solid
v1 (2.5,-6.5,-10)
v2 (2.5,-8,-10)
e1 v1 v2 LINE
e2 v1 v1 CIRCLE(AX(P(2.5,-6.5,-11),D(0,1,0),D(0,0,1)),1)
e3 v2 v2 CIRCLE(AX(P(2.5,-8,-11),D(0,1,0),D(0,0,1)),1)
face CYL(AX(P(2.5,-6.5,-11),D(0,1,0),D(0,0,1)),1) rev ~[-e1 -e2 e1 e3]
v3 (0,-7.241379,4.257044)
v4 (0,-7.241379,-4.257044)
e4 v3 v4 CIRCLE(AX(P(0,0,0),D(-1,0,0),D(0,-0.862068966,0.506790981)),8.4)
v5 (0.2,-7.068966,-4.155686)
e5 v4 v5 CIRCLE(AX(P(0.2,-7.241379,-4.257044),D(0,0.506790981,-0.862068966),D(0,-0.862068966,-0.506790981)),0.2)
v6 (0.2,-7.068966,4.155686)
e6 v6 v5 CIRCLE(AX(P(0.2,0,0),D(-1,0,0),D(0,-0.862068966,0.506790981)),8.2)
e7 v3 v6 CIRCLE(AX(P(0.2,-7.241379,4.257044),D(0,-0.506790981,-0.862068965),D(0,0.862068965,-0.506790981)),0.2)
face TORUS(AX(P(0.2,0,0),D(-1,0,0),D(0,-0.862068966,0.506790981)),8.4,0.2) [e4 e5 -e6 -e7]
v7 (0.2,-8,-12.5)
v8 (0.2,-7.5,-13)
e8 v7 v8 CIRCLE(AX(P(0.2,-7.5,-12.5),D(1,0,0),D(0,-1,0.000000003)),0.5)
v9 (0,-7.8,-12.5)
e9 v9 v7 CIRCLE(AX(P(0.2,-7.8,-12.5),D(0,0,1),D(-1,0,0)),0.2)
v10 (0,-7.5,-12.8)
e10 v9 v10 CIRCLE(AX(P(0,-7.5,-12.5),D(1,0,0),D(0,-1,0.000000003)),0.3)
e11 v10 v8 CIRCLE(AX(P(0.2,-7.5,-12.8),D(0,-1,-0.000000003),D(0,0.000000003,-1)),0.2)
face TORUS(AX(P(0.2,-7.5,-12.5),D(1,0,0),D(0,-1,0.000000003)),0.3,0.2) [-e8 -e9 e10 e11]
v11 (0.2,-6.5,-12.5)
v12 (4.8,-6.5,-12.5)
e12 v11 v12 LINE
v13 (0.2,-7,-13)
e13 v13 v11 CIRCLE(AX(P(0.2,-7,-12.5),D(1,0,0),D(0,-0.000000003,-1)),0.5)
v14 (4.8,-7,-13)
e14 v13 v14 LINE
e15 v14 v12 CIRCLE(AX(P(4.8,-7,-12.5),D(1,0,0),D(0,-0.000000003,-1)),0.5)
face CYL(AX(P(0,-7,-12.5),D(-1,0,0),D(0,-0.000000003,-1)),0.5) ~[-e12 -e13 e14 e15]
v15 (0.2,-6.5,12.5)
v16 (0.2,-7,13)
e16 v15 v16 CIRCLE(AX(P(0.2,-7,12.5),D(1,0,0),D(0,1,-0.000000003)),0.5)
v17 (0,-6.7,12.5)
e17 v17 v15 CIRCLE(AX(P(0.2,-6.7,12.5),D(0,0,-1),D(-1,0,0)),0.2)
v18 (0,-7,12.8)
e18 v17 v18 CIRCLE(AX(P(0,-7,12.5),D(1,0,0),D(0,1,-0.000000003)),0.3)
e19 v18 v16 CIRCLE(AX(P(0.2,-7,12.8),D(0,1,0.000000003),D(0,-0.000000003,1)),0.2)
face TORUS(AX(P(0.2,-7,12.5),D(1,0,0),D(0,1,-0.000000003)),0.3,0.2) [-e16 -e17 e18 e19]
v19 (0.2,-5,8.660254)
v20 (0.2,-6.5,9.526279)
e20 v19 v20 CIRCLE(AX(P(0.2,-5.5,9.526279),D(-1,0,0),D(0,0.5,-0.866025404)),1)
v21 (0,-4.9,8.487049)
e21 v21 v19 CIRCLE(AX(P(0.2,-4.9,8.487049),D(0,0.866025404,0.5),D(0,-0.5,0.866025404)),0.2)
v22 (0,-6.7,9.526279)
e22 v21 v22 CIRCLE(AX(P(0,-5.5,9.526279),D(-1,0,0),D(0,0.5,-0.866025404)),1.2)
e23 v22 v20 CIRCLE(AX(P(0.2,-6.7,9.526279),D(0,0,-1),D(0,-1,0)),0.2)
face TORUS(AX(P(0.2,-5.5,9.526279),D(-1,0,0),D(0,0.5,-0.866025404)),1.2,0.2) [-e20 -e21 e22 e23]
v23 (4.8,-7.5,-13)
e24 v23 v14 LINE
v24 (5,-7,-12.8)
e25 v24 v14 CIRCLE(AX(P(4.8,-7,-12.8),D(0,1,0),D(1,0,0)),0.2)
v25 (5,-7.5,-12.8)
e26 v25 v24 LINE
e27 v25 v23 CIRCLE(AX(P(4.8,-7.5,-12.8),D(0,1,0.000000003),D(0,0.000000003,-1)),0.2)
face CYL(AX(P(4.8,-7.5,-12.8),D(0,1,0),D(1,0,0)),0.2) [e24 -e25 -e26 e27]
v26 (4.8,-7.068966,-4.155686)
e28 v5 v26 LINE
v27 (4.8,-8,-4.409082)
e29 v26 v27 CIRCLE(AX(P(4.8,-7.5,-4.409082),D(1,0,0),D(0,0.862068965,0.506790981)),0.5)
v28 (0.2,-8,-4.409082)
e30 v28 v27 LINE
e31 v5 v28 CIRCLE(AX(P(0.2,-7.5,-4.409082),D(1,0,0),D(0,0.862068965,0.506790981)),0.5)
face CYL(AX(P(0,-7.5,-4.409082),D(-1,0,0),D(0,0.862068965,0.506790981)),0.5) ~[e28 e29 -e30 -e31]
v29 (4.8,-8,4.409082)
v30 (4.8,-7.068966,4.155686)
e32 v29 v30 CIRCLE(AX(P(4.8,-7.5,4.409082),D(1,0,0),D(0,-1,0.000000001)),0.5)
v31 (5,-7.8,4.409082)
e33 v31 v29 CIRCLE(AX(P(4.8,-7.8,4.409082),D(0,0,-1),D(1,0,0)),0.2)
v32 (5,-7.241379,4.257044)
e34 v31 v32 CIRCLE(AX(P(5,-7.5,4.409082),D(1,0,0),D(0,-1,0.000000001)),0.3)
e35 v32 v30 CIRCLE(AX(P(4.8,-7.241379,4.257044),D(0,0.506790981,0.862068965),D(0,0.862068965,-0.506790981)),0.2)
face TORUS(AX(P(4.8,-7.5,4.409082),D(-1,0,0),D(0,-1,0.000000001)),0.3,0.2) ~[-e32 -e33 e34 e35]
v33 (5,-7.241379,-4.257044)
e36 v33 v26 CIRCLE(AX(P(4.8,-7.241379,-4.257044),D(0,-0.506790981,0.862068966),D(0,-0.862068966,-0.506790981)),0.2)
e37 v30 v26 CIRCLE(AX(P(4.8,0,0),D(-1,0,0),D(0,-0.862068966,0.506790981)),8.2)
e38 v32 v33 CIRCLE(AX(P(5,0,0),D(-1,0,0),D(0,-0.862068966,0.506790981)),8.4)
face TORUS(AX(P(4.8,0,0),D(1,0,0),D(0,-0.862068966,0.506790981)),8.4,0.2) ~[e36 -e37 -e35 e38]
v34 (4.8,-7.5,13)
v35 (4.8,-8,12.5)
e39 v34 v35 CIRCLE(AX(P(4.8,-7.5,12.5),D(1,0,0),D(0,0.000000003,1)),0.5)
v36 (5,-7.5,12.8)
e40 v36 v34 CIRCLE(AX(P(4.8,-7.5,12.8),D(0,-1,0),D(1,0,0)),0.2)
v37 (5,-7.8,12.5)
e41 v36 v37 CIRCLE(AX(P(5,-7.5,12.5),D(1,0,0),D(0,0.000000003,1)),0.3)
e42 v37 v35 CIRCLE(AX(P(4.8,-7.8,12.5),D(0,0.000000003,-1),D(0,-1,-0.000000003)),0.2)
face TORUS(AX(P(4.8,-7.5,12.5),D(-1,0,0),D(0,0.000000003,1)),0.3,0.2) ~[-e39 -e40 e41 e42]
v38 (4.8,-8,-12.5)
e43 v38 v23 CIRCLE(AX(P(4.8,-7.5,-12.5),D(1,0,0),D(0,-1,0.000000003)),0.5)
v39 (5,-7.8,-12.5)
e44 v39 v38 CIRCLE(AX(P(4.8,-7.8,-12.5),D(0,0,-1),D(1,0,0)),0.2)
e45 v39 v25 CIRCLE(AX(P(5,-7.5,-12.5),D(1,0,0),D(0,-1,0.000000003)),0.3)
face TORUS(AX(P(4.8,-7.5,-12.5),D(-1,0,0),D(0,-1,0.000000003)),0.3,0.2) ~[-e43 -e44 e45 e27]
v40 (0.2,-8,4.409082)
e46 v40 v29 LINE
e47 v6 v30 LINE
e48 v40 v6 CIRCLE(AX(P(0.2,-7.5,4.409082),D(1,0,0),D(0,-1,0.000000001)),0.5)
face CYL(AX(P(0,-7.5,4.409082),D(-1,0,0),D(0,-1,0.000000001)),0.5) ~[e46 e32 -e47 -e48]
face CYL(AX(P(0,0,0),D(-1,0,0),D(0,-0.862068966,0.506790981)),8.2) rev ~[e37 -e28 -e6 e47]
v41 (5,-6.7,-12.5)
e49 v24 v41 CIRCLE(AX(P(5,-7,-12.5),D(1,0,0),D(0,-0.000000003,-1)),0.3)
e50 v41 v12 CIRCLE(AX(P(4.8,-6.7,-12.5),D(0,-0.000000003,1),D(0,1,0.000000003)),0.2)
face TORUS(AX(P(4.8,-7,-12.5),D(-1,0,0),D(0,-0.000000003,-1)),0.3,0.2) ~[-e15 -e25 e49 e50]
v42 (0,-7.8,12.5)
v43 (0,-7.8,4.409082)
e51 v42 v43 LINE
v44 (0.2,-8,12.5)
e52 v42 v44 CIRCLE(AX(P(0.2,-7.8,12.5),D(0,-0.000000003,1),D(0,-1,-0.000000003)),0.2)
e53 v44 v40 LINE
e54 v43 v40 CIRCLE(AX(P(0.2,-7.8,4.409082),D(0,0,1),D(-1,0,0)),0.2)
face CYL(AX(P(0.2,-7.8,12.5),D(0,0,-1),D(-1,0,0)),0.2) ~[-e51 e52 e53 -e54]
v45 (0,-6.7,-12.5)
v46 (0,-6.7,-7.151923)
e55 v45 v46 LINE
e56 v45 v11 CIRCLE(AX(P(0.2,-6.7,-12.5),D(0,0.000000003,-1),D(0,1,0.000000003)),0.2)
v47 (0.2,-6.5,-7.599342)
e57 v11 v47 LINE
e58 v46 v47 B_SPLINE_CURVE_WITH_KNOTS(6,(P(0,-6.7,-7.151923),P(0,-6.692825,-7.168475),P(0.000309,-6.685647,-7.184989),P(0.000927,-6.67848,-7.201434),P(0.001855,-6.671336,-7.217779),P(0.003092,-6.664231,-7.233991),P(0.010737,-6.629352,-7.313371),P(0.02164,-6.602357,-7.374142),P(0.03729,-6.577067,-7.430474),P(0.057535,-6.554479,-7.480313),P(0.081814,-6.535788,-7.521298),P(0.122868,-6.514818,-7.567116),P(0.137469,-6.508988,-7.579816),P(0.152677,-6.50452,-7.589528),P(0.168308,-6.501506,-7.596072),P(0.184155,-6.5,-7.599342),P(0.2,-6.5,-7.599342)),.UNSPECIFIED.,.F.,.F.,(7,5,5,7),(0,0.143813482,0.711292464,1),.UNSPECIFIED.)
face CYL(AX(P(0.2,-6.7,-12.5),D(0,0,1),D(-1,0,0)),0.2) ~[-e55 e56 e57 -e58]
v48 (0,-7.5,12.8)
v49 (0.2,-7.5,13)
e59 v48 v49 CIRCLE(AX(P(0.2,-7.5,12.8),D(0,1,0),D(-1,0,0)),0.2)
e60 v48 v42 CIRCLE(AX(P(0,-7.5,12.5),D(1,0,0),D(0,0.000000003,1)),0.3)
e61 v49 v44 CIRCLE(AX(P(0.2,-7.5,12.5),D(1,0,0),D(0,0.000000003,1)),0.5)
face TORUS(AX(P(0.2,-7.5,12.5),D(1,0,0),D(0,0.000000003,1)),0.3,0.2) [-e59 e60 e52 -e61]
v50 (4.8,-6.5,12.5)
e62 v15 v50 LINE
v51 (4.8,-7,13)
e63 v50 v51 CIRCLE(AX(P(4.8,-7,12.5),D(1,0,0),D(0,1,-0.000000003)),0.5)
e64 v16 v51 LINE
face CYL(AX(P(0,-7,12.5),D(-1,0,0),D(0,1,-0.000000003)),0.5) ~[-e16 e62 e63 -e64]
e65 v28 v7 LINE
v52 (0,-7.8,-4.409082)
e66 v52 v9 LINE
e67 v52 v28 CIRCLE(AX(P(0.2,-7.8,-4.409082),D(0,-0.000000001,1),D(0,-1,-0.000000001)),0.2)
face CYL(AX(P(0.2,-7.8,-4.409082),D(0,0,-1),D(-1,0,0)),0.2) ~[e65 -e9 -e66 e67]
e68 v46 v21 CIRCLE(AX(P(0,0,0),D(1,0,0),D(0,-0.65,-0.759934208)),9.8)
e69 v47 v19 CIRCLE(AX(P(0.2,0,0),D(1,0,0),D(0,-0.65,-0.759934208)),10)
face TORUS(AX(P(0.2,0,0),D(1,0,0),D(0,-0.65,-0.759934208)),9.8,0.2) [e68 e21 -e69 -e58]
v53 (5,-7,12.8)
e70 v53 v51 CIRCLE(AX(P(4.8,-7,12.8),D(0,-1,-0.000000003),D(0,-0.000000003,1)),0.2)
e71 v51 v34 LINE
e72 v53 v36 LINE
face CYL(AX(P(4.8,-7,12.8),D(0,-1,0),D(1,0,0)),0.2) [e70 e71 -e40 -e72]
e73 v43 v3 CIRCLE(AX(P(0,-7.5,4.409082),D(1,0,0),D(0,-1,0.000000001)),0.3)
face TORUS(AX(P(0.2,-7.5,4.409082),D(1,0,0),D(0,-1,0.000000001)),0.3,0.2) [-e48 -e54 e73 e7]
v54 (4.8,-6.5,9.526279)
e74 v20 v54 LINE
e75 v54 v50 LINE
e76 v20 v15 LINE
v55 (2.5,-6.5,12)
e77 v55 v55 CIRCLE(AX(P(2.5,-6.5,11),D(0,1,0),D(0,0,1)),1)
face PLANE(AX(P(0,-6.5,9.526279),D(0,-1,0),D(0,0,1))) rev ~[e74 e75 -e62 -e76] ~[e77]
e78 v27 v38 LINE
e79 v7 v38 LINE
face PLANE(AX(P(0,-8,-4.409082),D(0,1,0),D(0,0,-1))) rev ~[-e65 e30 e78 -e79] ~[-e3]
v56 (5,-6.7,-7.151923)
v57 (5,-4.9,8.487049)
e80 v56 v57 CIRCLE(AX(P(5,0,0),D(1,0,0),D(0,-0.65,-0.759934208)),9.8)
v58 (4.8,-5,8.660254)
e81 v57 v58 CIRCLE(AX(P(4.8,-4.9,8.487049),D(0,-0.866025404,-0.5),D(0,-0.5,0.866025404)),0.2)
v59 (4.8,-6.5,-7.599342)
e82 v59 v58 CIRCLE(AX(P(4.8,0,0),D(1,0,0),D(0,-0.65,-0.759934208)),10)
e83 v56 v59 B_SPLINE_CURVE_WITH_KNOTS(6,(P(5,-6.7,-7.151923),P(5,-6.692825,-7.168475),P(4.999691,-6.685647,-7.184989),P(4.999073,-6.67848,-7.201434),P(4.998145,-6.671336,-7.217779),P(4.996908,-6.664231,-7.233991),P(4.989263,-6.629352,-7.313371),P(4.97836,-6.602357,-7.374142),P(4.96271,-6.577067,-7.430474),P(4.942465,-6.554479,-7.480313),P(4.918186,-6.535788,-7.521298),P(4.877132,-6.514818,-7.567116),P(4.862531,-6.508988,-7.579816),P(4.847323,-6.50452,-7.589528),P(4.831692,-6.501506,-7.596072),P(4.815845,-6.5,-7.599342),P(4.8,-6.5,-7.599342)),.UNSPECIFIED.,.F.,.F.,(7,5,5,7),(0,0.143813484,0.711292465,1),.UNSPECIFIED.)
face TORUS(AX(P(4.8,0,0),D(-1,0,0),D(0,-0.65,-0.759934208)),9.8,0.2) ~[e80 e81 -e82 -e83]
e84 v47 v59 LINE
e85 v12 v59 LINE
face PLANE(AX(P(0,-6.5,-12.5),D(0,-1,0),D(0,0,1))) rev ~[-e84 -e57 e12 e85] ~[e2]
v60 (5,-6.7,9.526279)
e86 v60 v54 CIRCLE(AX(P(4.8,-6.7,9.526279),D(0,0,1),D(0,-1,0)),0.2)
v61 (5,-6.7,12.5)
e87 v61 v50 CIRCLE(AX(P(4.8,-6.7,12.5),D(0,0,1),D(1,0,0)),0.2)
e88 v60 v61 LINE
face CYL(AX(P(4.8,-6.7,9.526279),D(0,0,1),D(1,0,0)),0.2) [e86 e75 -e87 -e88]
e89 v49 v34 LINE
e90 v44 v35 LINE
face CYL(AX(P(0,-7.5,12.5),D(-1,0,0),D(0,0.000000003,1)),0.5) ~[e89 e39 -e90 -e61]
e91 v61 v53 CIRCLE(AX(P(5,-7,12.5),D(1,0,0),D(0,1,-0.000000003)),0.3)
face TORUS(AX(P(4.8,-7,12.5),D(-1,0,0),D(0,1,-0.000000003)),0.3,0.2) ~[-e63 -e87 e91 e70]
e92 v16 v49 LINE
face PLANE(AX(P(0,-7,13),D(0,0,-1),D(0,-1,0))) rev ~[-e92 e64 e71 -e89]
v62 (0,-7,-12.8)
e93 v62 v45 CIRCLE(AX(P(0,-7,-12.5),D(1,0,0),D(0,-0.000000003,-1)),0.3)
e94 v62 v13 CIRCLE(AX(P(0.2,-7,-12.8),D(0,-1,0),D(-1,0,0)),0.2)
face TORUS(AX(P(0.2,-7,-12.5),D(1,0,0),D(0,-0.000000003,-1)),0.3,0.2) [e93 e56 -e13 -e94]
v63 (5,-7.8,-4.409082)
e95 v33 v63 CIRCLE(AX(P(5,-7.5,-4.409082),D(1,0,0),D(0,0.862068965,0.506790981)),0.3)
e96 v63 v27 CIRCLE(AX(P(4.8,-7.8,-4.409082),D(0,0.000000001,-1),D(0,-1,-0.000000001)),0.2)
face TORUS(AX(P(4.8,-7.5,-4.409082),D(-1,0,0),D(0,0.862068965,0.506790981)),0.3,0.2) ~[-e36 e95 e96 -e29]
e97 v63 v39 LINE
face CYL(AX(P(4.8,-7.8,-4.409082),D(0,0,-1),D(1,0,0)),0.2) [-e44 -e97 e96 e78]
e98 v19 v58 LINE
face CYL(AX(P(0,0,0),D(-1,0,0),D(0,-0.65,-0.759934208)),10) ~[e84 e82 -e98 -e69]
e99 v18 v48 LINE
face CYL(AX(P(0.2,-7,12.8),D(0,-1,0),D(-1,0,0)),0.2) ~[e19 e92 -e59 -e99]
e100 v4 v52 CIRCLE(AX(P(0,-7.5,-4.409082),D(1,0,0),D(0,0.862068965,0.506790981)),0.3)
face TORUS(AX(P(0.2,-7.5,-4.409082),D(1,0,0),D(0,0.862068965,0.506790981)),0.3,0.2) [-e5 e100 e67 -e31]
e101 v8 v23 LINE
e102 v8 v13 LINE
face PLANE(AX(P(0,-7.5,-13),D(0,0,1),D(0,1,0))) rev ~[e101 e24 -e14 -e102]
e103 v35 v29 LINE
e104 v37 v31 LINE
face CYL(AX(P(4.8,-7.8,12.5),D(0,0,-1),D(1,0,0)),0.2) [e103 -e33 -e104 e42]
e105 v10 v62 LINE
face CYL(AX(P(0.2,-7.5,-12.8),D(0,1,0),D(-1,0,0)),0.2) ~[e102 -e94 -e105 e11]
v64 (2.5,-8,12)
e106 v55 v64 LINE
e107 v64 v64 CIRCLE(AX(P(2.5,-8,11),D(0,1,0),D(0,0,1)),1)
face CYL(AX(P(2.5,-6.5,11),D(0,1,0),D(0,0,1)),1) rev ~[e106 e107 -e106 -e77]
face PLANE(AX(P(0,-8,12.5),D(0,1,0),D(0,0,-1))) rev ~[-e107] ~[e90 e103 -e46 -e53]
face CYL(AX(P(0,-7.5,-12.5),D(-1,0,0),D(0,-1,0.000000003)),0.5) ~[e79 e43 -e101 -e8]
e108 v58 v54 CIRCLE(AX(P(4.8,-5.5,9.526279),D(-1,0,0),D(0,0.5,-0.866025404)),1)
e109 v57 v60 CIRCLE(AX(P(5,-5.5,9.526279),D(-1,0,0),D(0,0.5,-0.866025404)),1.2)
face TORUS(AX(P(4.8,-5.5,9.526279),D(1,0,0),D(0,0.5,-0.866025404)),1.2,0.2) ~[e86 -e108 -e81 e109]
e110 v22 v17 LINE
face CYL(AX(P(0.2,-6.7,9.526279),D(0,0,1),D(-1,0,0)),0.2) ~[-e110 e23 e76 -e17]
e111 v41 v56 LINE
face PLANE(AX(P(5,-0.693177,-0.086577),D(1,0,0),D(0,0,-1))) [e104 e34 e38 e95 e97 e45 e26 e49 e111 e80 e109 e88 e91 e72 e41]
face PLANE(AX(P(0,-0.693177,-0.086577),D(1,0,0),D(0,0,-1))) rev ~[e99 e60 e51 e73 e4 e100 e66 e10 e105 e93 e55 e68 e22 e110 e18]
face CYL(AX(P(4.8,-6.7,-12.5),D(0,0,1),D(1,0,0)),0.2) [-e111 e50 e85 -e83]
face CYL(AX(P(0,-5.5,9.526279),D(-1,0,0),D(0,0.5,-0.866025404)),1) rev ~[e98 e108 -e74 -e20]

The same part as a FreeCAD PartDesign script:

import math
import FreeCAD as App
import Part
import Sketcher
from FreeCAD import Vector
Q = App.Units.Quantity


def edges_at(feature, points):
    """Names of the edges that pass closest to the given points."""
    edges = feature.Shape.Edges
    near = lambda p: min(range(len(edges)), key=lambda i: edges[i].distToShape(Part.Vertex(*p))[0])
    return sorted({f"Edge{near(p) + 1}" for p in points})

doc = App.newDocument("Part")
body = doc.addObject("PartDesign::Body", "Body")

sketch1 = body.newObject("Sketcher::SketchObject", "Sketch")
sketch1.AttachmentSupport = (doc.getObject("YZ_Plane"), [""])
sketch1.MapMode = "FlatFace"
sketch1.addGeometry([
    Part.LineSegment(Vector(-8, 12.5, 0), Vector(-8, 4.41, 0)),
    Part.ArcOfCircle(Part.Circle(Vector(-7.5, 4.41, 0), Vector(0, 0, 1), 0.5), math.radians(180), math.radians(330)),
    Part.ArcOfCircle(Part.Circle(Vector(0, 0, 0), Vector(0, 0, 1), 8.2), math.radians(-150), math.radians(150)),
    Part.ArcOfCircle(Part.Circle(Vector(-7.5, -4.41, 0), Vector(0, 0, 1), 0.5), math.radians(30), math.radians(180)),
    Part.LineSegment(Vector(-8, -4.41, 0), Vector(-8, -12.5, 0)),
    Part.ArcOfCircle(Part.Circle(Vector(-7.5, -12.5, 0), Vector(0, 0, 1), 0.5), math.radians(180), math.radians(270)),
    Part.LineSegment(Vector(-7.5, -13, 0), Vector(-7, -13, 0)),
    Part.ArcOfCircle(Part.Circle(Vector(-7, -12.5, 0), Vector(0, 0, 1), 0.5), math.radians(-90), math.radians(0)),
    Part.LineSegment(Vector(-6.5, -12.5, 0), Vector(-6.5, -7.6, 0)),
    Part.ArcOfCircle(Part.Circle(Vector(0, 0, 0), Vector(0, 0, 1), 10), math.radians(-131), math.radians(120)),
    Part.ArcOfCircle(Part.Circle(Vector(-5.5, 9.53, 0), Vector(0, 0, 1), 1), math.radians(180), math.radians(300)),
    Part.LineSegment(Vector(-6.5, 9.53, 0), Vector(-6.5, 12.5, 0)),
    Part.ArcOfCircle(Part.Circle(Vector(-7, 12.5, 0), Vector(0, 0, 1), 0.5), math.radians(0), math.radians(90)),
    Part.LineSegment(Vector(-7, 13, 0), Vector(-7.5, 13, 0)),
    Part.ArcOfCircle(Part.Circle(Vector(-7.5, 12.5, 0), Vector(0, 0, 1), 0.5), math.radians(90), math.radians(180)),
], False)
sketch1.addConstraint([
    Sketcher.Constraint("Tangent", 0, 2, 1, 1),
    Sketcher.Constraint("Tangent", 1, 2, 2, 2),
    Sketcher.Constraint("Tangent", 2, 1, 3, 1),
    Sketcher.Constraint("Tangent", 3, 2, 4, 1),
    Sketcher.Constraint("Tangent", 4, 2, 5, 1),
    Sketcher.Constraint("Tangent", 5, 2, 6, 1),
    Sketcher.Constraint("Tangent", 6, 2, 7, 1),
    Sketcher.Constraint("Tangent", 7, 2, 8, 1),
    Sketcher.Constraint("Coincident", 8, 2, 9, 1),
    Sketcher.Constraint("Tangent", 9, 2, 10, 2),
    Sketcher.Constraint("Tangent", 10, 1, 11, 1),
    Sketcher.Constraint("Tangent", 11, 2, 12, 1),
    Sketcher.Constraint("Tangent", 12, 2, 13, 1),
    Sketcher.Constraint("Tangent", 13, 2, 14, 1),
    Sketcher.Constraint("Tangent", 14, 2, 0, 1),
    Sketcher.Constraint("Vertical", 0),
    Sketcher.Constraint("Vertical", 4),
    Sketcher.Constraint("Horizontal", 6),
    Sketcher.Constraint("Vertical", 8),
    Sketcher.Constraint("Vertical", 11),
    Sketcher.Constraint("Horizontal", 13),
    Sketcher.Constraint("Coincident", 2, 3, -1, 1),
    Sketcher.Constraint("Coincident", 9, 3, -1, 1),
    Sketcher.Constraint("Equal", 1, 3),
    Sketcher.Constraint("Equal", 3, 5),
    Sketcher.Constraint("Equal", 5, 7),
    Sketcher.Constraint("Equal", 7, 12),
    Sketcher.Constraint("Equal", 12, 14),
    Sketcher.Constraint("Symmetric", 7, 3, 12, 3, -1),
    Sketcher.Constraint("Vertical", 1, 3, 3, 3),
    Sketcher.Constraint("Radius", 9, Q("10 mm")),
    Sketcher.Constraint("Radius", 10, Q("1 mm")),
    Sketcher.Constraint("Radius", 1, Q("0.5 mm")),
    Sketcher.Constraint("Radius", 2, Q("8.2 mm")),
    Sketcher.Constraint("DistanceX", 6, 1, 6, 2, Q("0.5 mm")),
    Sketcher.Constraint("DistanceX", 7, 3, -1, 1, Q("7 mm")),
    Sketcher.Constraint("DistanceY", 5, 2, -1, 1, Q("13 mm")),
])
pad1 = body.newObject("PartDesign::Pad", "Pad")
pad1.Profile = sketch1
pad1.Length = 5

sketch2 = body.newObject("Sketcher::SketchObject", "Sketch001")
sketch2.AttachmentSupport = (doc.getObject("XZ_Plane"), [""])
sketch2.MapMode = "FlatFace"
sketch2.AttachmentOffset = App.Placement(Vector(0, 0, 6.5), App.Rotation())
sketch2.addGeometry(Part.Circle(Vector(2.5, 11, 0), Vector(0, 0, 1), 1), False)
sketch2.addConstraint([
    Sketcher.Constraint("Diameter", 0, Q("2 mm")),
    Sketcher.Constraint("DistanceY", -1, 1, 0, 3, Q("11 mm")),
    Sketcher.Constraint("DistanceX", -1, 1, 0, 3, Q("2.5 mm")),
])
pocket1 = body.newObject("PartDesign::Pocket", "Pocket")
pocket1.Profile = sketch2
pocket1.Type = "UpToFirst"
pocket1.Reversed = True

sketch3 = body.newObject("Sketcher::SketchObject", "Sketch002")
sketch3.AttachmentSupport = (doc.getObject("XZ_Plane"), [""])
sketch3.MapMode = "FlatFace"
sketch3.AttachmentOffset = App.Placement(Vector(0, 0, 6.5), App.Rotation())
sketch3.addGeometry(Part.Circle(Vector(2.5, -11, 0), Vector(0, 0, 1), 1), False)
sketch3.addConstraint([
    Sketcher.Constraint("Diameter", 0, Q("2 mm")),
    Sketcher.Constraint("DistanceY", 0, 3, -1, 1, Q("11 mm")),
    Sketcher.Constraint("DistanceX", -1, 1, 0, 3, Q("2.5 mm")),
])
pocket2 = body.newObject("PartDesign::Pocket", "Pocket001")
pocket2.Profile = sketch3
pocket2.Type = "UpToFirst"
pocket2.Reversed = True
doc.recompute()

fillet = body.newObject("PartDesign::Fillet", "Fillet")
fillet.Base = (pocket2, edges_at(pocket2, [
    (5, -6.646, -12.854),
    (5, -6.5, -10.05),
    (0, -8, -8.455),
    (0, -7.631, -3.927),
    (0, 8.2, 0),
    (0, -7.631, 3.927),
    (0, -8, 8.455),
    (0, -7.854, 12.854),
    (0, -7.25, 13),
    (5, 9.958, -0.919),
    (0, -6.646, 12.854),
    (0, -6.5, 11.013),
    (0, -6, 8.66),
    (0, 9.958, -0.919),
    (0, -6.5, -10.05),
    (0, -6.646, -12.854),
    (0, -7.25, -13),
    (0, -7.854, -12.854),
    (5, -6, 8.66),
    (5, -6.5, 11.013),
    (5, -6.646, 12.854),
    (5, -7.25, 13),
    (5, -7.854, 12.854),
    (5, -8, 8.455),
    (5, -7.631, 3.927),
    (5, -7.854, -12.854),
    (5, 8.2, 0),
    (5, -7.631, -3.927),
    (5, -8, -8.455),
    (5, -7.25, -13),
]))
fillet.Radius = 0.2

doc.recompute()
